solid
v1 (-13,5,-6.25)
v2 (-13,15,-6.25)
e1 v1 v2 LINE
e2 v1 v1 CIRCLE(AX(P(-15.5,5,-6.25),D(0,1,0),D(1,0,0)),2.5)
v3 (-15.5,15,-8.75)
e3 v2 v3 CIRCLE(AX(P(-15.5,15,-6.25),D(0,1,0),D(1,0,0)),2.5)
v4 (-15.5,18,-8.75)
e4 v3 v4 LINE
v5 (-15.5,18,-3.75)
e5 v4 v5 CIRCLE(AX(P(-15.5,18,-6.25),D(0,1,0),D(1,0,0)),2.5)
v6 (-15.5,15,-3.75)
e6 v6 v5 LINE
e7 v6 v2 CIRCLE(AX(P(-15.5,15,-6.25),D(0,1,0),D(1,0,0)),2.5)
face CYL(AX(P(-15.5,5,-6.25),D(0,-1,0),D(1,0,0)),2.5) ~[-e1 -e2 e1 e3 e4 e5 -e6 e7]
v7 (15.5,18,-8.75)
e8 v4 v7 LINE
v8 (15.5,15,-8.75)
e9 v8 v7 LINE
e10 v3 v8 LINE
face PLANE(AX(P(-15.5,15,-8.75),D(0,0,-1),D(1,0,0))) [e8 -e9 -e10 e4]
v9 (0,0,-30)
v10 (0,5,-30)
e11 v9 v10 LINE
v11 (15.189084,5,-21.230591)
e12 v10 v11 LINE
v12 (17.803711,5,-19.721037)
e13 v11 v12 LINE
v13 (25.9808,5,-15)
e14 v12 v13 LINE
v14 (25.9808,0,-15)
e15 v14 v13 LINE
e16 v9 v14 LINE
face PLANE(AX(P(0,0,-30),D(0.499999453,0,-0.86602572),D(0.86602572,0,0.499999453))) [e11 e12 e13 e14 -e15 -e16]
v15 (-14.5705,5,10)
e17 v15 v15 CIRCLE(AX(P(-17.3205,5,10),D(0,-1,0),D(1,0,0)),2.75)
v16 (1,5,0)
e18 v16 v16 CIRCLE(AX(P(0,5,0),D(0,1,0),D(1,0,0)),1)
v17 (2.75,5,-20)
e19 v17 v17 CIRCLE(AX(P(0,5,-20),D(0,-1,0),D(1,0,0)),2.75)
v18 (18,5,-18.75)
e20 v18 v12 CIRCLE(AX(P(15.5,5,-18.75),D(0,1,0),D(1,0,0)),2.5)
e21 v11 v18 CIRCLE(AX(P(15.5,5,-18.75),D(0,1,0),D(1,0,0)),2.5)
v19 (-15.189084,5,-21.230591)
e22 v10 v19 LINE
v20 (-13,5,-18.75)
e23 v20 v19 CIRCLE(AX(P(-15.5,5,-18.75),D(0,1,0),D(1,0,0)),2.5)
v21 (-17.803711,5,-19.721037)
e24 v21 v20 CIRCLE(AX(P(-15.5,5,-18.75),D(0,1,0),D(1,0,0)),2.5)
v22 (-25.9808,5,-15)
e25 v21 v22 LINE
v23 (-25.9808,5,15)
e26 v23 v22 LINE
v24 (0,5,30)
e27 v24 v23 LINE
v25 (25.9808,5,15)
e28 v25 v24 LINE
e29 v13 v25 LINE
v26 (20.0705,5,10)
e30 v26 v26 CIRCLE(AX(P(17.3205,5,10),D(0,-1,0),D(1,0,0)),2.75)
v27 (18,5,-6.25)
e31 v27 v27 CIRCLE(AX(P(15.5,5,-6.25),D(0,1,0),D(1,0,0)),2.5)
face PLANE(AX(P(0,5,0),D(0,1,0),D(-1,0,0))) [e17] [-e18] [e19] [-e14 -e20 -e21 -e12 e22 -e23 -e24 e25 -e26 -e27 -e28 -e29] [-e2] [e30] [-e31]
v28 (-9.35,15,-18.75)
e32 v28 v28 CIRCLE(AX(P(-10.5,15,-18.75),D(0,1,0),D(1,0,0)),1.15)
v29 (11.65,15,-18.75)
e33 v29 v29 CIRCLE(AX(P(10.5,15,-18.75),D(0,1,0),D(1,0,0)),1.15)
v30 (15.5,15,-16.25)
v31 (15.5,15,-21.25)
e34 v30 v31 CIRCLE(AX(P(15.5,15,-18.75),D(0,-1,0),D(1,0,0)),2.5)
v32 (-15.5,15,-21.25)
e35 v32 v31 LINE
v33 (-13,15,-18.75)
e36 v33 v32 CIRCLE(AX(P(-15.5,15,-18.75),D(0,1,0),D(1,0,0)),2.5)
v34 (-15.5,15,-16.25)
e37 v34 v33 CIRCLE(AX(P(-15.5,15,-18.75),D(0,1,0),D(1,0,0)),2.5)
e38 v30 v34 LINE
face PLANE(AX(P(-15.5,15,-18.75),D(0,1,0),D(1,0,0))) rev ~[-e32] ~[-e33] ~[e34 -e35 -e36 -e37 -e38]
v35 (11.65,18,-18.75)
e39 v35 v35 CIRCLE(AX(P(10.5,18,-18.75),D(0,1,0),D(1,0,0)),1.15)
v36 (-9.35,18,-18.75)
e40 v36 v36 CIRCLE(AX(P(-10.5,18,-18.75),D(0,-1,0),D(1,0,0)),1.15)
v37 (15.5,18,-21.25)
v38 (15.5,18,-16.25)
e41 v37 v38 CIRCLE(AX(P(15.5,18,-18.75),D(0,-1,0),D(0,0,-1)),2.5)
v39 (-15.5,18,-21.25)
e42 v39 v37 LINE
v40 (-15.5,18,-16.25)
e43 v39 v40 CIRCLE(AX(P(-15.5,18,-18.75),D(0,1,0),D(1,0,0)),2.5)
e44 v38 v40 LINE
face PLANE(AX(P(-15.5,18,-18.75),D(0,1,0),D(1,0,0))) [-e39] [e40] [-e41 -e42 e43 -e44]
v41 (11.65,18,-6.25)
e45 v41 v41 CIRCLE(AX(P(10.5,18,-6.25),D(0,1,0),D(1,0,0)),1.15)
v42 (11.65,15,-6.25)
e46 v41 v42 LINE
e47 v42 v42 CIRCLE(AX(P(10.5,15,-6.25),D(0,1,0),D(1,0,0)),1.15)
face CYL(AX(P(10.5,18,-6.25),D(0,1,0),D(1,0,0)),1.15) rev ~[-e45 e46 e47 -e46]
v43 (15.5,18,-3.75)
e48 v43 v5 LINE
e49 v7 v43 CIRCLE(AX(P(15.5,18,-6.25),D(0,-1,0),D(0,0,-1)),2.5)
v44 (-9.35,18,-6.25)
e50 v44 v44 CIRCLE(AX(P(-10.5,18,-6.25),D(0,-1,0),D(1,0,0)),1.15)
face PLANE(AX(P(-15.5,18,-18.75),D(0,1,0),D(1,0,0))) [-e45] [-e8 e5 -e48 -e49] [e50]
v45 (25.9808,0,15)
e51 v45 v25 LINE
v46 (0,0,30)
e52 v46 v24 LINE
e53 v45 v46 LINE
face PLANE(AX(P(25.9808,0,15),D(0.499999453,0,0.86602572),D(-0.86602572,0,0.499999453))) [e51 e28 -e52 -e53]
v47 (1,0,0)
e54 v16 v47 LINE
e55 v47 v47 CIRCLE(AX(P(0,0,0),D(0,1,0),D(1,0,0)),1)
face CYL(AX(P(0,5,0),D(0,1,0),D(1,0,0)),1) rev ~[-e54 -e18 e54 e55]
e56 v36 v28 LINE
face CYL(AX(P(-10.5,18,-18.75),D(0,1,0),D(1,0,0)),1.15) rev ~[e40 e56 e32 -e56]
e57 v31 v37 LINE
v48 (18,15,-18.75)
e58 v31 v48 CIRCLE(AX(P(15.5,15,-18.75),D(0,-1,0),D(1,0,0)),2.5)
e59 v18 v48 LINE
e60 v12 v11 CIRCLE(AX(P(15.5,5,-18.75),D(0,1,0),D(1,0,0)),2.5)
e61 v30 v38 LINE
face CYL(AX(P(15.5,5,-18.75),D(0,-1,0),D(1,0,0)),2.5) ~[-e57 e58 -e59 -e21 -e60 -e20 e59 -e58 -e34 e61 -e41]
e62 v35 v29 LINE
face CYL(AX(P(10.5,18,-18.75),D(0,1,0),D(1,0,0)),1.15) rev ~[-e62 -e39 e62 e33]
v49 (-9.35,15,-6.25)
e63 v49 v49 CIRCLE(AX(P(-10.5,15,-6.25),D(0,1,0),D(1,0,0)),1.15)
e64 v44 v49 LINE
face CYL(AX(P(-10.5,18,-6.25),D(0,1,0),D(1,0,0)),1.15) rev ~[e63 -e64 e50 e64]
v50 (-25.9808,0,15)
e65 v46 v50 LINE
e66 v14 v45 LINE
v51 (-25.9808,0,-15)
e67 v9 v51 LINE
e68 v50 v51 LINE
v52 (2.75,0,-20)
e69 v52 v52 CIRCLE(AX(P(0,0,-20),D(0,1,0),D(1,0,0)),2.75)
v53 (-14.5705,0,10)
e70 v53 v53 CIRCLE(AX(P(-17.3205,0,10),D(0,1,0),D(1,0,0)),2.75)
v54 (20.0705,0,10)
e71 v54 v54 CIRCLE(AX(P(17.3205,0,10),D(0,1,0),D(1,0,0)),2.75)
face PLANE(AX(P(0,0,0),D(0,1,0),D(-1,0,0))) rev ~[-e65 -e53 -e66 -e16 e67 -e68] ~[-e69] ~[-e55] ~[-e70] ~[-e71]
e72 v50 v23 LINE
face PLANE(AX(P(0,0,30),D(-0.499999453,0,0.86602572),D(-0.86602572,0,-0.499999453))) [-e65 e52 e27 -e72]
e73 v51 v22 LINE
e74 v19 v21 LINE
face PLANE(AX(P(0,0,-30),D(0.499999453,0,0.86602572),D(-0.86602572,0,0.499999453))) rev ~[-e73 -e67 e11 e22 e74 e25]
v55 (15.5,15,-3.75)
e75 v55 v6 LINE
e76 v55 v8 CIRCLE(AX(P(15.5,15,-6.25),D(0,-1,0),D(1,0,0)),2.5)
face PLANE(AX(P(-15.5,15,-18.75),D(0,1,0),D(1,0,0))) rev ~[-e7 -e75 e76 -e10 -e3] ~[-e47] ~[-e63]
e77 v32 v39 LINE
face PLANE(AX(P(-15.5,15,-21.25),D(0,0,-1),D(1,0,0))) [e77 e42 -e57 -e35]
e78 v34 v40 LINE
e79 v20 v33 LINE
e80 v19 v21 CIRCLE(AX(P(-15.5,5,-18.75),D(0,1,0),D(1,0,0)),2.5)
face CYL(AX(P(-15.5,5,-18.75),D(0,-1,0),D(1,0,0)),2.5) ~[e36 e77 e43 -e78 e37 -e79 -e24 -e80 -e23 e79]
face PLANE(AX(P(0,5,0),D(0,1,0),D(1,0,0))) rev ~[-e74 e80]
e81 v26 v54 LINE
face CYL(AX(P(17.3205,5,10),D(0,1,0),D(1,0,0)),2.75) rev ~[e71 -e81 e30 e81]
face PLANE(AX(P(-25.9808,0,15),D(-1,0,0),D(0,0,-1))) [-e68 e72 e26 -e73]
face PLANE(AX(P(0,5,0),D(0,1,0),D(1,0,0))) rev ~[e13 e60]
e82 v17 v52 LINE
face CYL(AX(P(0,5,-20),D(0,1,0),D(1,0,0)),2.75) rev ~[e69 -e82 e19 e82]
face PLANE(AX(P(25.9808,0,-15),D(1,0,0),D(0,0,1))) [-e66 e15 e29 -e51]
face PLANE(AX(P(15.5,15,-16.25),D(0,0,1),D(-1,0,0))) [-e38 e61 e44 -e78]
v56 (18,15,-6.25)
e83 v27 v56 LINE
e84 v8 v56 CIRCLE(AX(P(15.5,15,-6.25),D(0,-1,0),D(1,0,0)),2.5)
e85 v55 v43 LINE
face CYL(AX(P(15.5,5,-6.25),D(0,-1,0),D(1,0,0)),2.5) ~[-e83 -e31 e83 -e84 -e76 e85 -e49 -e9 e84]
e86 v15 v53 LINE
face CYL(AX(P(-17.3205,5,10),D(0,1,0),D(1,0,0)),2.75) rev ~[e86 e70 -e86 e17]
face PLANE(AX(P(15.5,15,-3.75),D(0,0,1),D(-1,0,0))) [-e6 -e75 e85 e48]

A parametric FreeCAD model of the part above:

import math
import FreeCAD as App
import Part
import Sketcher

V = App.Vector
Q = App.Units.Quantity

doc = App.newDocument("Part")
body = doc.addObject("PartDesign::Body", "Body")

# Sketch on XZ plane
sketch1 = doc.addObject("Sketcher::SketchObject", "Sketch")
body.addObject(sketch1)
sketch1.AttachmentSupport = (doc.XZ_Plane, [""])
sketch1.MapMode = "FlatFace"
sketch1.addGeometry([
    Part.LineSegment(V(-25.9808, -15, 0), V(-25.9808, 15, 0)),  # 0
    Part.LineSegment(V(-25.9808, 15, 0), V(0, 30, 0)),  # 1
    Part.LineSegment(V(0, 30, 0), V(25.9808, 15, 0)),  # 2
    Part.LineSegment(V(25.9808, 15, 0), V(25.9808, -15, 0)),  # 3
    Part.LineSegment(V(25.9808, -15, 0), V(0, -30, 0)),  # 4
    Part.LineSegment(V(0, -30, 0), V(-25.9808, -15, 0)),  # 5
], False)
sketch1.addConstraint([
    Sketcher.Constraint("Coincident", 0, 2, 1, 1),
    Sketcher.Constraint("Coincident", 1, 2, 2, 1),
    Sketcher.Constraint("Coincident", 2, 2, 3, 1),
    Sketcher.Constraint("Coincident", 3, 2, 4, 1),
    Sketcher.Constraint("Coincident", 4, 2, 5, 1),
    Sketcher.Constraint("Coincident", 5, 2, 0, 1),
    Sketcher.Constraint("Vertical", 0),
    Sketcher.Constraint("Vertical", 3),
    Sketcher.Constraint("Symmetric", 0, 2, 3, 2, -1, 1),
    Sketcher.Constraint("Symmetric", 1, 2, 4, 2, -1, 1),
    Sketcher.Constraint("PointOnObject", 1, 2, -2),
    Sketcher.Constraint("Parallel", 2, 5),
    Sketcher.Constraint("Horizontal", 0, 2, 2, 2),
    Sketcher.Constraint("DistanceY", 0, 1, 0, 2, Q("30 mm")),
    Sketcher.Constraint("Angle", 1, Q("30 deg")),
    Sketcher.Constraint("Distance", 1, Q("30 mm")),
])
pad1 = doc.addObject("PartDesign::Pad", "Pad")
body.addObject(pad1)
pad1.Profile = sketch1
pad1.Length = 5
pad1.Reversed = True

# Sketch on XZ plane
sketch2 = doc.addObject("Sketcher::SketchObject", "Sketch001")
body.addObject(sketch2)
sketch2.AttachmentSupport = (doc.XZ_Plane, [""])
sketch2.MapMode = "FlatFace"
sketch2.AttachmentOffset = App.Placement(V(0, 0, -5), App.Rotation())
sketch2.addGeometry([
    Part.Circle(V(0, -20, 0), V(0, 0, 1), 2.75),
    Part.Circle(V(17.3205, 10, 0), V(0, 0, 1), 2.75),
    Part.Circle(V(-17.3205, 10, 0), V(0, 0, 1), 2.75),
], False)
sketch2.addConstraint([
    Sketcher.Constraint("Equal", 0, 1),
    Sketcher.Constraint("Equal", 1, 2),
    Sketcher.Constraint("Symmetric", 1, 3, 2, 3, -2),
    Sketcher.Constraint("PointOnObject", 0, 3, -2),
    Sketcher.Constraint("Diameter", 0, Q("5.5 mm")),
    Sketcher.Constraint("DistanceY", 0, 3, -1, 1, Q("20 mm")),
    Sketcher.Constraint("DistanceY", 0, 3, 1, 3, Q("30 mm")),
    Sketcher.Constraint("DistanceX", 2, 3, 1, 3, Q("34.641 mm")),
])
pocket1 = doc.addObject("PartDesign::Pocket", "Pocket")
body.addObject(pocket1)
pocket1.Profile = sketch2
pocket1.Length = 10
pocket1.Reversed = True

# Sketch on XZ plane
sketch3 = doc.addObject("Sketcher::SketchObject", "Sketch002")
body.addObject(sketch3)
sketch3.AttachmentSupport = (doc.XZ_Plane, [""])
sketch3.MapMode = "FlatFace"
sketch3.AttachmentOffset = App.Placement(V(0, 0, -5), App.Rotation())
sketch3.addGeometry([
    Part.Circle(V(-15.5, -6.25, 0), V(0, 0, 1), 2.5),
    Part.Circle(V(-15.5, -18.75, 0), V(0, 0, 1), 2.5),
    Part.Circle(V(15.5, -18.75, 0), V(0, 0, 1), 2.5),
    Part.Circle(V(15.5, -6.25, 0), V(0, 0, 1), 2.5),
], False)
sketch3.addConstraint([
    Sketcher.Constraint("Equal", 0, 1),
    Sketcher.Constraint("Equal", 1, 2),
    Sketcher.Constraint("Equal", 2, 3),
    Sketcher.Constraint("Symmetric", 1, 3, 2, 3, -2),
    Sketcher.Constraint("Symmetric", 0, 3, 3, 3, -2),
    Sketcher.Constraint("Vertical", 0, 3, 1, 3),
    Sketcher.Constraint("Diameter", 0, Q("5 mm")),
    Sketcher.Constraint("DistanceY", 1, 3, 0, 3, Q("12.5 mm")),
    Sketcher.Constraint("DistanceX", 1, 3, 2, 3, Q("31 mm")),
    Sketcher.Constraint("DistanceY", 0, 3, -1, 1, Q("6.25 mm")),
])
pad2 = doc.addObject("PartDesign::Pad", "Pad001")
body.addObject(pad2)
pad2.Profile = sketch3
pad2.Length = 10
pad2.Reversed = True

# Sketch on XZ plane
sketch4 = doc.addObject("Sketcher::SketchObject", "Sketch003")
body.addObject(sketch4)
sketch4.AttachmentSupport = (doc.XZ_Plane, [""])
sketch4.MapMode = "FlatFace"
sketch4.AttachmentOffset = App.Placement(V(0, 0, -15), App.Rotation())
sketch4.addGeometry([
    Part.LineSegment(V(-15.5, -16.25, 0), V(15.5, -16.25, 0)),  # 0
    Part.ArcOfCircle(Part.Circle(V(15.5, -18.75, 0), V(0, 0, 1), 2.5), math.radians(-90), math.radians(90)),  # 1
    Part.LineSegment(V(15.5, -21.25, 0), V(-15.5, -21.25, 0)),  # 2
    Part.ArcOfCircle(Part.Circle(V(-15.5, -18.75, 0), V(0, 0, 1), 2.5), math.radians(90), math.radians(270)),  # 3
    Part.LineSegment(V(-15.5, -3.75, 0), V(15.5, -3.75, 0)),  # 4
    Part.ArcOfCircle(Part.Circle(V(15.5, -6.25, 0), V(0, 0, 1), 2.5), math.radians(-90), math.radians(90)),  # 5
    Part.LineSegment(V(15.5, -8.75, 0), V(-15.5, -8.75, 0)),  # 6
    Part.ArcOfCircle(Part.Circle(V(-15.5, -6.25, 0), V(0, 0, 1), 2.5), math.radians(90), math.radians(270)),  # 7
], False)
sketch4.addConstraint([
    Sketcher.Constraint("Tangent", 0, 2, 1, 2),
    Sketcher.Constraint("Tangent", 1, 1, 2, 1),
    Sketcher.Constraint("Tangent", 2, 2, 3, 2),
    Sketcher.Constraint("Tangent", 3, 1, 0, 1),
    Sketcher.Constraint("Tangent", 4, 2, 5, 2),
    Sketcher.Constraint("Tangent", 5, 1, 6, 1),
    Sketcher.Constraint("Tangent", 6, 2, 7, 2),
    Sketcher.Constraint("Tangent", 7, 1, 4, 1),
    Sketcher.Constraint("Horizontal", 0),
    Sketcher.Constraint("Horizontal", 2),
    Sketcher.Constraint("Horizontal", 4),
    Sketcher.Constraint("Horizontal", 6),
    Sketcher.Constraint("Equal", 3, 5),
    Sketcher.Constraint("Vertical", 1, 3, 5, 3),
    Sketcher.Constraint("Vertical", 3, 3, 7, 3),
    Sketcher.Constraint("Radius", 1, Q("2.5 mm")),
    Sketcher.Constraint("DistanceX", 0, 1, 0, 2, Q("31 mm")),
    Sketcher.Constraint("DistanceY", 0, 2, 5, 3, Q("10 mm")),
    Sketcher.Constraint("DistanceX", -1, 1, 1, 3, Q("15.5 mm")),
    Sketcher.Constraint("DistanceY", 1, 3, -1, 1, Q("18.75 mm")),
])
pad3 = doc.addObject("PartDesign::Pad", "Pad002")
body.addObject(pad3)
pad3.Profile = sketch4
pad3.Length = 3
pad3.Reversed = True

# Sketch on XZ plane
sketch5 = doc.addObject("Sketcher::SketchObject", "Sketch004")
body.addObject(sketch5)
sketch5.AttachmentSupport = (doc.XZ_Plane, [""])
sketch5.MapMode = "FlatFace"
sketch5.AttachmentOffset = App.Placement(V(0, 0, -18), App.Rotation())
sketch5.addGeometry([
    Part.Circle(V(-10.5, -18.75, 0), V(0, 0, 1), 1.15),
    Part.Circle(V(-10.5, -6.25, 0), V(0, 0, 1), 1.15),
    Part.Circle(V(10.5, -6.25, 0), V(0, 0, 1), 1.15),
    Part.Circle(V(10.5, -18.75, 0), V(0, 0, 1), 1.15),
], False)
sketch5.addConstraint([
    Sketcher.Constraint("Equal", 0, 1),
    Sketcher.Constraint("Equal", 1, 2),
    Sketcher.Constraint("Equal", 2, 3),
    Sketcher.Constraint("Symmetric", 1, 3, 2, 3, -2),
    Sketcher.Constraint("Symmetric", 0, 3, 3, 3, -2),
    Sketcher.Constraint("Vertical", 0, 3, 1, 3),
    Sketcher.Constraint("Diameter", 0, Q("2.3 mm")),
    Sketcher.Constraint("DistanceX", 1, 3, 2, 3, Q("21 mm")),
    Sketcher.Constraint("DistanceY", 0, 3, 1, 3, Q("12.5 mm")),
    Sketcher.Constraint("DistanceY", 0, 3, -1, 1, Q("18.75 mm")),
])
pocket2 = doc.addObject("PartDesign::Pocket", "Pocket001")
body.addObject(pocket2)
pocket2.Profile = sketch5
pocket2.Length = 3
pocket2.Reversed = True

# Sketch on XZ plane
sketch6 = doc.addObject("Sketcher::SketchObject", "Sketch005")
body.addObject(sketch6)
sketch6.AttachmentSupport = (doc.XZ_Plane, [""])
sketch6.MapMode = "FlatFace"
sketch6.AttachmentOffset = App.Placement(V(0, 0, -5), App.Rotation())
sketch6.addGeometry(Part.Circle(V(0, 0, 0), V(0, 0, 1), 1), False)
sketch6.addConstraint([
    Sketcher.Constraint("Coincident", 0, 3, -1, 1),
    Sketcher.Constraint("Diameter", 0, Q("2 mm")),
])
pocket3 = doc.addObject("PartDesign::Pocket", "Pocket002")
body.addObject(pocket3)
pocket3.Profile = sketch6
pocket3.Length = 10
pocket3.Reversed = True

doc.recompute()
